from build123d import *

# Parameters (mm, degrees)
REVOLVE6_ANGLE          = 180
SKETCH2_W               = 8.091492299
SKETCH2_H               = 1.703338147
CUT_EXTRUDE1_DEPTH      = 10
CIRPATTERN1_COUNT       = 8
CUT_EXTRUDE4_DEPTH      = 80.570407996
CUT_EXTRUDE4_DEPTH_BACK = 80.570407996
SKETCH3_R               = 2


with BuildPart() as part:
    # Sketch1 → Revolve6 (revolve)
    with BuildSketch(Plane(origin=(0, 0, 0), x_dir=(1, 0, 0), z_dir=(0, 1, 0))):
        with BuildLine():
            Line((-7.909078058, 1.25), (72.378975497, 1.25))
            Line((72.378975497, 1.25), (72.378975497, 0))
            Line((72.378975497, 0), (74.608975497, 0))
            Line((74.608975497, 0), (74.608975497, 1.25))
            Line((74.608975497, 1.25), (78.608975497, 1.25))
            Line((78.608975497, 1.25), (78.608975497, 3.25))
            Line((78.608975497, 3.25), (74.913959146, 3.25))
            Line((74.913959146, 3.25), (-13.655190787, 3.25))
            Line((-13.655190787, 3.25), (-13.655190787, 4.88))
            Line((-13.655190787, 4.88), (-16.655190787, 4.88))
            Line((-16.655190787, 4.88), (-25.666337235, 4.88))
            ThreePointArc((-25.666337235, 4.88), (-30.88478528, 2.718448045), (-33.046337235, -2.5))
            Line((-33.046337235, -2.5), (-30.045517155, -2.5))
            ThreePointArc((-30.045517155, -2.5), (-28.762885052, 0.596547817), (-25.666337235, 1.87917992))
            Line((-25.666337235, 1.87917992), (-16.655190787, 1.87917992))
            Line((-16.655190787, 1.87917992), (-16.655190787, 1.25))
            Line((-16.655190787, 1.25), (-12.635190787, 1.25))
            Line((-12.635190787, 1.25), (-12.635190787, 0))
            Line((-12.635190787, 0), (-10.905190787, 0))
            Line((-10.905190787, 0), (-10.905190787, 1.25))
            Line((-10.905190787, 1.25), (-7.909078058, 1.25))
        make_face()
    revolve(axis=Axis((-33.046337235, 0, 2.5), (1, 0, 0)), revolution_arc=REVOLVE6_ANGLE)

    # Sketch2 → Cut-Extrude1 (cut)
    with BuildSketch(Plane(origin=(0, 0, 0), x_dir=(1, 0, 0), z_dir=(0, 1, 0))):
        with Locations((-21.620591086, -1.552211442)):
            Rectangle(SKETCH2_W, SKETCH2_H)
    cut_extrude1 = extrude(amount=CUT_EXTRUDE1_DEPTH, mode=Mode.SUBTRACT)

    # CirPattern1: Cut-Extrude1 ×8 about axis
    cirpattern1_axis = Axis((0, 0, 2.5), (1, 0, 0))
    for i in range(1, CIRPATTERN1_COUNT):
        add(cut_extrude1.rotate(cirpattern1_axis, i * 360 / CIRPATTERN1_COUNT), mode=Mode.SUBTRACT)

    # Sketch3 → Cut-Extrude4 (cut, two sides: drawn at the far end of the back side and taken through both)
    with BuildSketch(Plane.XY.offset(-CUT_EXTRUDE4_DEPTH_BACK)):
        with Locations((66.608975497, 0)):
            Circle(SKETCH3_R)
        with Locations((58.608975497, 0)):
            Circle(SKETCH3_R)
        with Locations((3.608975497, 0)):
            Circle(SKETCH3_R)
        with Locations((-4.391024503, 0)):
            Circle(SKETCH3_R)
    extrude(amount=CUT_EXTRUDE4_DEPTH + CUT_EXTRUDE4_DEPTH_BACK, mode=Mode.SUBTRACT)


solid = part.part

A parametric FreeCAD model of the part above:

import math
import FreeCAD as App
import Part
import Sketcher

V = App.Vector

doc = App.newDocument("Part")
body = doc.addObject("PartDesign::Body", "Body")

# Sketch on XZ plane
sketch1 = body.newObject("Sketcher::SketchObject", "Sketch")
sketch1.AttachmentSupport = (doc.getObject("XZ_Plane"), [""])
sketch1.MapMode = "FlatFace"
sketch1.addGeometry([
    Part.LineSegment(V(72.4, -1.2, 0), V(72.4, 0, 0)),  # 0
    Part.LineSegment(V(72.4, 0, 0), V(74.6, 0, 0)),  # 1
    Part.LineSegment(V(74.6, 0, 0), V(74.6, -1.2, 0)),  # 2
    Part.LineSegment(V(74.6, -1.2, 0), V(78.6, -1.2, 0)),  # 3
    Part.LineSegment(V(78.6, -1.2, 0), V(78.6, -3.2, 0)),  # 4
    Part.LineSegment(V(78.6, -3.2, 0), V(-13.7, -3.2, 0)),  # 5
    Part.LineSegment(V(-13.7, -3.2, 0), V(-13.7, -4.9, 0)),  # 6
    Part.LineSegment(V(-13.7, -4.9, 0), V(-25.7, -4.9, 0)),  # 7
    Part.ArcOfCircle(Part.Circle(V(-25.7, 2.5, 0), V(0, 0, 1), 7.4), math.radians(-180), math.radians(-90)),  # 8
    Part.LineSegment(V(-33, 2.5, 0), V(-30, 2.5, 0)),  # 9
    Part.ArcOfCircle(Part.Circle(V(-25.7, 2.5, 0), V(0, 0, 1), 4.4), math.radians(-180), math.radians(-90)),  # 10
    Part.LineSegment(V(-25.7, -1.9, 0), V(-16.7, -1.9, 0)),  # 11
    Part.LineSegment(V(-16.7, -1.9, 0), V(-16.7, -1.2, 0)),  # 12
    Part.LineSegment(V(-16.7, -1.2, 0), V(-12.6, -1.2, 0)),  # 13
    Part.LineSegment(V(-12.6, -1.2, 0), V(-12.6, 0, 0)),  # 14
    Part.LineSegment(V(-12.6, 0, 0), V(-10.9, 0, 0)),  # 15
    Part.LineSegment(V(-10.9, 0, 0), V(-10.9, -1.2, 0)),  # 16
    Part.LineSegment(V(-10.9, -1.2, 0), V(72.4, -1.2, 0)),  # 17
], False)
sketch1.addGeometry(Part.LineSegment(V(-33, 2.5, 0), V(78.6, 2.5, 0)), True)  # axis
sketch1.addConstraint([
    Sketcher.Constraint("Coincident", 0, 2, 1, 1),
    Sketcher.Constraint("Coincident", 1, 2, 2, 1),
    Sketcher.Constraint("Coincident", 2, 2, 3, 1),
    Sketcher.Constraint("Coincident", 3, 2, 4, 1),
    Sketcher.Constraint("Coincident", 4, 2, 5, 1),
    Sketcher.Constraint("Coincident", 5, 2, 6, 1),
    Sketcher.Constraint("Coincident", 6, 2, 7, 1),
    Sketcher.Constraint("Tangent", 7, 2, 8, 2),
    Sketcher.Constraint("Coincident", 8, 1, 9, 1),
    Sketcher.Constraint("Coincident", 9, 2, 10, 1),
    Sketcher.Constraint("Tangent", 10, 2, 11, 1),
    Sketcher.Constraint("Coincident", 11, 2, 12, 1),
    Sketcher.Constraint("Coincident", 12, 2, 13, 1),
    Sketcher.Constraint("Coincident", 13, 2, 14, 1),
    Sketcher.Constraint("Coincident", 14, 2, 15, 1),
    Sketcher.Constraint("Coincident", 15, 2, 16, 1),
    Sketcher.Constraint("Coincident", 16, 2, 17, 1),
    Sketcher.Constraint("Coincident", 17, 2, 0, 1),
    Sketcher.Constraint("Vertical", 0),
    Sketcher.Constraint("Horizontal", 1),
    Sketcher.Constraint("Vertical", 2),
    Sketcher.Constraint("Horizontal", 3),
    Sketcher.Constraint("Vertical", 4),
    Sketcher.Constraint("Horizontal", 5),
    Sketcher.Constraint("Vertical", 6),
    Sketcher.Constraint("Horizontal", 7),
    Sketcher.Constraint("Horizontal", 9),
    Sketcher.Constraint("Horizontal", 11),
    Sketcher.Constraint("Vertical", 12),
    Sketcher.Constraint("Horizontal", 13),
    Sketcher.Constraint("Vertical", 14),
    Sketcher.Constraint("Horizontal", 15),
    Sketcher.Constraint("Vertical", 16),
    Sketcher.Constraint("Horizontal", 17),
    Sketcher.Constraint("Horizontal", 18),
    Sketcher.Constraint("Coincident", 10, 3, 8, 3),
    Sketcher.Constraint("Coincident", 18, 1, 8, 1),
    Sketcher.Constraint("PointOnObject", 0, 2, -1),
    Sketcher.Constraint("PointOnObject", 14, 2, -1),
    Sketcher.Constraint("Horizontal", 10, 3, 8, 1),
    Sketcher.Constraint("Horizontal", 3, 2, 12, 2),
    Sketcher.Constraint("Horizontal", 13, 2, 16, 2),
    Sketcher.Constraint("Vertical", 4, 2, 18, 2),
    Sketcher.Constraint("DistanceX", 3, 1, 3, 2, 4.0),
    Sketcher.Constraint("DistanceY", 4, 2, 4, 1, 2.0),
    Sketcher.Constraint("Radius", 8, 7.38),
    Sketcher.Constraint("DistanceX", 11, 2, 5, 2, 3.0),
    Sketcher.Constraint("DistanceX", 1, 1, 1, 2, 2.23),
    Sketcher.Constraint("DistanceX", 13, 1, 13, 2, 4.02),
    Sketcher.Constraint("DistanceX", 15, 1, 15, 2, 1.73),
    Sketcher.Constraint("DistanceY", 0, 1, 0, 2, 1.25),
    Sketcher.Constraint("DistanceY", 6, 2, 6, 1, 1.63),
    Sketcher.Constraint("Radius", 10, 4.37918),
    Sketcher.Constraint("DistanceX", 5, 2, 5, 1, 92.264166),
    Sketcher.Constraint("DistanceX", 7, 2, 7, 1, 12.011146),
    Sketcher.Constraint("DistanceX", 5, 2, -1, 1, 13.655191),
])
revolution = body.newObject("PartDesign::Revolution", "Revolution")
revolution.Profile = sketch1
revolution.ReferenceAxis = (sketch1, ["Axis0"])
revolution.Angle = 180

# Sketch on XZ plane
sketch2 = body.newObject("Sketcher::SketchObject", "Sketch001")
sketch2.AttachmentSupport = (doc.getObject("XZ_Plane"), [""])
sketch2.MapMode = "FlatFace"
sketch2.addGeometry([
    Part.LineSegment(V(-25.7, 0.7, 0), V(-25.7, 2.4, 0)),
    Part.LineSegment(V(-25.7, 2.4, 0), V(-17.6, 2.4, 0)),
    Part.LineSegment(V(-17.6, 2.4, 0), V(-17.6, 0.7, 0)),
    Part.LineSegment(V(-17.6, 0.7, 0), V(-25.7, 0.7, 0)),
], False)
sketch2.addConstraint([
    Sketcher.Constraint("Coincident", 0, 2, 1, 1),
    Sketcher.Constraint("Coincident", 1, 2, 2, 1),
    Sketcher.Constraint("Coincident", 2, 2, 3, 1),
    Sketcher.Constraint("Coincident", 3, 2, 0, 1),
    Sketcher.Constraint("Vertical", 0),
    Sketcher.Constraint("Horizontal", 1),
    Sketcher.Constraint("Vertical", 2),
    Sketcher.Constraint("Horizontal", 3),
    Sketcher.Constraint("DistanceY", 0, 1, 0, 2, 1.703338),
    Sketcher.Constraint("DistanceX", 1, 1, 1, 2, 8.091492),
    Sketcher.Constraint("DistanceY", -1, 1, 0, 2, 2.403881),
    Sketcher.Constraint("DistanceX", 0, 2, -1, 1, 25.666337),
])
pocket1 = body.newObject("PartDesign::Pocket", "Pocket")
pocket1.Profile = sketch2
pocket1.Length = 10
doc.recompute()

datumline = body.newObject("PartDesign::Line", "DatumLine")
datumline.Placement = App.Placement(V(0, 0, 2.5), App.Rotation(V(0, 0, 1), V(1, 0, 0)))
polarpattern = body.newObject("PartDesign::PolarPattern", "PolarPattern")
polarpattern.Originals = [pocket1]
polarpattern.Axis = (datumline, [""])
polarpattern.Angle = 360
polarpattern.Occurrences = 8
body.Tip = polarpattern

# Sketch on XY plane
sketch3 = body.newObject("Sketcher::SketchObject", "Sketch002")
sketch3.AttachmentSupport = (doc.getObject("XY_Plane"), [""])
sketch3.MapMode = "FlatFace"
sketch3.addGeometry([
    Part.Circle(V(66.6, 0, 0), V(0, 0, 1), 2),
    Part.Circle(V(58.6, 0, 0), V(0, 0, 1), 2),
    Part.Circle(V(3.6, 0, 0), V(0, 0, 1), 2),
    Part.Circle(V(-4.4, 0, 0), V(0, 0, 1), 2),
], False)
sketch3.addConstraint([
    Sketcher.Constraint("Equal", 0, 1),
    Sketcher.Constraint("Equal", 1, 2),
    Sketcher.Constraint("Equal", 2, 3),
    Sketcher.Constraint("PointOnObject", 0, 3, -1),
    Sketcher.Constraint("PointOnObject", 1, 3, -1),
    Sketcher.Constraint("PointOnObject", 2, 3, -1),
    Sketcher.Constraint("PointOnObject", 3, 3, -1),
    Sketcher.Constraint("Diameter", 0, 4.0),
    Sketcher.Constraint("DistanceX", 1, 3, 0, 3, 8.0),
    Sketcher.Constraint("DistanceX", 2, 3, 1, 3, 55.0),
    Sketcher.Constraint("DistanceX", 3, 3, 2, 3, 8.0),
    Sketcher.Constraint("DistanceX", -1, 1, 0, 3, 66.608975),
])
pocket2 = body.newObject("PartDesign::Pocket", "Pocket001")
pocket2.Profile = sketch3
pocket2.Type = "ThroughAll"
pocket2.Midplane = True

doc.recompute()
